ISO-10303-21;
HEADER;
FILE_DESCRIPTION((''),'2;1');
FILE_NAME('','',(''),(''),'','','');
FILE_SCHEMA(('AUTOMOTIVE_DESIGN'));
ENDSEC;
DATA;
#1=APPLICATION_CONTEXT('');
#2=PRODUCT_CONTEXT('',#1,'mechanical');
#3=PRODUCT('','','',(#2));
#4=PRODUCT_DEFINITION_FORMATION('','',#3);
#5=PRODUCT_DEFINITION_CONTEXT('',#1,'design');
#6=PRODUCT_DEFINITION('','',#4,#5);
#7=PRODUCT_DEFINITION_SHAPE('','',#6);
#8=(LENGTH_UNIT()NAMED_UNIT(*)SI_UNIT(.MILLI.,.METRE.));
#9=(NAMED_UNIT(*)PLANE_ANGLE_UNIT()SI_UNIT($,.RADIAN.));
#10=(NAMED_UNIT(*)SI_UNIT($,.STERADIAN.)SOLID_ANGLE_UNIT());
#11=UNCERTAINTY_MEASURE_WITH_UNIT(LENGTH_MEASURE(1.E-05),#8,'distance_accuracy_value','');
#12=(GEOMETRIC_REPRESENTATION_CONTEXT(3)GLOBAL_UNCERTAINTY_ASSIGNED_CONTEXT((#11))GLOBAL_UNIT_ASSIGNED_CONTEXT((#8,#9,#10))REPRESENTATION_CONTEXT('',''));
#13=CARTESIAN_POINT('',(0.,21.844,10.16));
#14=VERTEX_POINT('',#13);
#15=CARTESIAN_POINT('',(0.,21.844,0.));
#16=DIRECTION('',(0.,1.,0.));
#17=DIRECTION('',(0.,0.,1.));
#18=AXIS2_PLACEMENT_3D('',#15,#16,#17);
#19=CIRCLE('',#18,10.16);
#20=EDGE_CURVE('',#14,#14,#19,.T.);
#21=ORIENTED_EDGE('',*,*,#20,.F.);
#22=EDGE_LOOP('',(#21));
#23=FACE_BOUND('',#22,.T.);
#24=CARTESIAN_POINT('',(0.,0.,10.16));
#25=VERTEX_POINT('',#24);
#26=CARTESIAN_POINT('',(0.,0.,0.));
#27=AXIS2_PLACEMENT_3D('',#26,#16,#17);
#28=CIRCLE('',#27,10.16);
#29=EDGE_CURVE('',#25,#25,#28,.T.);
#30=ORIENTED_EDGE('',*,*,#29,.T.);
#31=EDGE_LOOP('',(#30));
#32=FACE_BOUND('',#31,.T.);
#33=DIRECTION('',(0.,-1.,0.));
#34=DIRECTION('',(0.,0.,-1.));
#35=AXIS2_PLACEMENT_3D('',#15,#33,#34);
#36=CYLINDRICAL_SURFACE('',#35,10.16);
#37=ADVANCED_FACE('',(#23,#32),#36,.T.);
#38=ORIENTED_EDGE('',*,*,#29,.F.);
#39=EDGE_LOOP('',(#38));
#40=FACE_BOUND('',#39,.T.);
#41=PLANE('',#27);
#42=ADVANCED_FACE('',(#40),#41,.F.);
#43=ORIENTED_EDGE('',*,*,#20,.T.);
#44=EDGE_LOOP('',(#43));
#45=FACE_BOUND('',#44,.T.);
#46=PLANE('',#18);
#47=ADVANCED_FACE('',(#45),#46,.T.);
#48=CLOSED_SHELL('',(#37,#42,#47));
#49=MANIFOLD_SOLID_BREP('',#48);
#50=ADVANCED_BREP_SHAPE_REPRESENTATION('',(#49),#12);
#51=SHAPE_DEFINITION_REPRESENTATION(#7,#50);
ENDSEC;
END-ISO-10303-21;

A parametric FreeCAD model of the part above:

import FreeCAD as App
import Part
import Sketcher
from FreeCAD import Vector
Q = App.Units.Quantity

doc = App.newDocument("Part")
body = doc.addObject("PartDesign::Body", "Body")

sketch1 = body.newObject("Sketcher::SketchObject", "Sketch")
sketch1.AttachmentSupport = (doc.getObject("XZ_Plane"), [""])
sketch1.MapMode = "FlatFace"
sketch1.addGeometry(Part.Circle(Vector(0, 0, 0), Vector(0, 0, 1), 10.16), False)
sketch1.addConstraint([
    Sketcher.Constraint("Coincident", 0, 3, -1, 1),
    Sketcher.Constraint("Diameter", 0, Q("0.8 in")),
])
pad1 = body.newObject("PartDesign::Pad", "Pad")
pad1.Profile = sketch1
pad1.Length = Q("0.86 in")
pad1.Reversed = True

doc.recompute()
